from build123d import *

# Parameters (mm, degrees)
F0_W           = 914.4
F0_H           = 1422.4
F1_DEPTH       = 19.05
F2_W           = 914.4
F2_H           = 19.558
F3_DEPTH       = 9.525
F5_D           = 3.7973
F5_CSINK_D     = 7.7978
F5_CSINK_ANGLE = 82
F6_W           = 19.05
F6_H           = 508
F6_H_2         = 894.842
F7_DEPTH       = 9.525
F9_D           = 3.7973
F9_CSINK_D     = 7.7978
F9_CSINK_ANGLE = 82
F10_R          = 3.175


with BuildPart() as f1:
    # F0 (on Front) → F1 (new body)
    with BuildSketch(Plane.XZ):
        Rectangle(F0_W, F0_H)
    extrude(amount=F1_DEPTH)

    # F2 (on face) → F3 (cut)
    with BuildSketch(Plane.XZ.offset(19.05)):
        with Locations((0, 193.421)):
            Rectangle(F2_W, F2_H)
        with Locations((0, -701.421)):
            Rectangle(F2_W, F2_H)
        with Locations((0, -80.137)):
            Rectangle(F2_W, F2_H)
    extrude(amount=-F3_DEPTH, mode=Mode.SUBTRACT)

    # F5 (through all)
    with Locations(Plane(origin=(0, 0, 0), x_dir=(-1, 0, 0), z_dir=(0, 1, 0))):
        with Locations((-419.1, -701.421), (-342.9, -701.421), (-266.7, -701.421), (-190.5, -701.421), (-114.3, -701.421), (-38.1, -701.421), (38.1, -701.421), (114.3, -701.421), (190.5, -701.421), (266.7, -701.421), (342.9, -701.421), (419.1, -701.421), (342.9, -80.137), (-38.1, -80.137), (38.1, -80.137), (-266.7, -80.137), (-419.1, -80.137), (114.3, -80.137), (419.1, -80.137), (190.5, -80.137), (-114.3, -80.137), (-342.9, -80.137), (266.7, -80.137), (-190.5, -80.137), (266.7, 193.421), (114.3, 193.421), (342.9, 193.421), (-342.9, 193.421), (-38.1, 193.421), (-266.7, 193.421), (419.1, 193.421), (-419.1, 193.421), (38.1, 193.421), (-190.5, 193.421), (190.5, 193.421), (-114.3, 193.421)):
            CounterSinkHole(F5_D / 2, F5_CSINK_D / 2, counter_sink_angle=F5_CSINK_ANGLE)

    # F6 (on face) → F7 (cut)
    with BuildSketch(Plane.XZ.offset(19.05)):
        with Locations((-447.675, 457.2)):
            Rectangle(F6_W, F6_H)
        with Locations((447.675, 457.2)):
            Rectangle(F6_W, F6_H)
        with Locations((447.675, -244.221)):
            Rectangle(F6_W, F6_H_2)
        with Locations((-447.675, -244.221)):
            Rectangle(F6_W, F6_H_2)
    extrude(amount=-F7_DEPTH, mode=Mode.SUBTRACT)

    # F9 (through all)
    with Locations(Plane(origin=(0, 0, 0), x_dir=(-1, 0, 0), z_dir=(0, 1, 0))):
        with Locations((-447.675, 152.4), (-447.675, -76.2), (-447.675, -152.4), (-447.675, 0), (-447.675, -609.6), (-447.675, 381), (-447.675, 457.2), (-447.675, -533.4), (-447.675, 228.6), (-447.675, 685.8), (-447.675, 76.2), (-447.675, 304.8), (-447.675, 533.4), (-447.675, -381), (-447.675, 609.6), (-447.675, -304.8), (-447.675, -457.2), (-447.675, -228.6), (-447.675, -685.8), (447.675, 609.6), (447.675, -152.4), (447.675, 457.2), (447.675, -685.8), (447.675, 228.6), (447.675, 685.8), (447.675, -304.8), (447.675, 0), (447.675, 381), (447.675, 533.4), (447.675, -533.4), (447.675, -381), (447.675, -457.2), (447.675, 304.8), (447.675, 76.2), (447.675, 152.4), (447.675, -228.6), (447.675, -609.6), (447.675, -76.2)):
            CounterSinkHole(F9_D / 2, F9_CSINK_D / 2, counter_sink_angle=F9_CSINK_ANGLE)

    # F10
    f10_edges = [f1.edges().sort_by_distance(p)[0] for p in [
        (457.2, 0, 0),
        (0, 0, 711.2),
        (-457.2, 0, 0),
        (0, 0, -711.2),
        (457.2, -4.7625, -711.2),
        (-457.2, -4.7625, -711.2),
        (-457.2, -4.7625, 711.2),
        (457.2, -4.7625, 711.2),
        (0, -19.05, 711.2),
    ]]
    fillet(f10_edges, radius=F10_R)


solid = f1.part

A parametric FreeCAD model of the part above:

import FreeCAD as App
import Part
import Sketcher
Q = App.Units.Quantity


def edges_at(feature, points):
    """Names of the edges that pass closest to the given points."""
    edges = feature.Shape.Edges
    near = lambda p: min(range(len(edges)), key=lambda i: edges[i].distToShape(Part.Vertex(*p))[0])
    return sorted({f"Edge{near(p) + 1}" for p in points})

doc = App.newDocument("Part")
body = doc.addObject("PartDesign::Body", "Body")

sketch1 = doc.addObject("Sketcher::SketchObject", "Sketch")
body.addObject(sketch1)
sketch1.AttachmentSupport = (doc.XZ_Plane, [""])
sketch1.MapMode = "FlatFace"
sketch1.addGeometry([
    Part.LineSegment(App.Vector(-457, 711, 0), App.Vector(-457, -711, 0)),
    Part.LineSegment(App.Vector(-457, -711, 0), App.Vector(457, -711, 0)),
    Part.LineSegment(App.Vector(457, -711, 0), App.Vector(457, 711, 0)),
    Part.LineSegment(App.Vector(457, 711, 0), App.Vector(-457, 711, 0)),
], False)
sketch1.addConstraint([
    Sketcher.Constraint("Coincident", 0, 2, 1, 1),
    Sketcher.Constraint("Coincident", 1, 2, 2, 1),
    Sketcher.Constraint("Coincident", 2, 2, 3, 1),
    Sketcher.Constraint("Coincident", 3, 2, 0, 1),
    Sketcher.Constraint("Vertical", 0),
    Sketcher.Constraint("Horizontal", 1),
    Sketcher.Constraint("Vertical", 2),
    Sketcher.Constraint("Horizontal", 3),
    Sketcher.Constraint("Symmetric", 0, 2, 2, 2, -1, 1),
    Sketcher.Constraint("DistanceX", 1, 1, 1, 2, Q("36 in")),
    Sketcher.Constraint("DistanceY", 0, 2, 0, 1, Q("56 in")),
])
pad1 = doc.addObject("PartDesign::Pad", "Pad")
body.addObject(pad1)
pad1.Profile = sketch1
pad1.Length = Q("0.75 in")

sketch2 = doc.addObject("Sketcher::SketchObject", "Sketch001")
body.addObject(sketch2)
sketch2.AttachmentSupport = (doc.XZ_Plane, [""])
sketch2.MapMode = "FlatFace"
sketch2.AttachmentOffset = App.Placement(App.Vector(0, 0, 0.75 * 25.4), App.Rotation())
sketch2.addGeometry([
    Part.LineSegment(App.Vector(-457, 203, 0), App.Vector(-457, 184, 0)),
    Part.LineSegment(App.Vector(-457, 184, 0), App.Vector(457, 184, 0)),
    Part.LineSegment(App.Vector(457, 184, 0), App.Vector(457, 203, 0)),
    Part.LineSegment(App.Vector(457, 203, 0), App.Vector(-457, 203, 0)),
    Part.LineSegment(App.Vector(-457, -692, 0), App.Vector(-457, -711, 0)),
    Part.LineSegment(App.Vector(-457, -711, 0), App.Vector(457, -711, 0)),
    Part.LineSegment(App.Vector(457, -711, 0), App.Vector(457, -692, 0)),
    Part.LineSegment(App.Vector(457, -692, 0), App.Vector(-457, -692, 0)),
    Part.LineSegment(App.Vector(-457, -70, 0), App.Vector(-457, -90, 0)),
    Part.LineSegment(App.Vector(-457, -90, 0), App.Vector(457, -90, 0)),
    Part.LineSegment(App.Vector(457, -90, 0), App.Vector(457, -70, 0)),
    Part.LineSegment(App.Vector(457, -70, 0), App.Vector(-457, -70, 0)),
], False)
sketch2.addConstraint([
    Sketcher.Constraint("Coincident", 0, 2, 1, 1),
    Sketcher.Constraint("Coincident", 1, 2, 2, 1),
    Sketcher.Constraint("Coincident", 2, 2, 3, 1),
    Sketcher.Constraint("Coincident", 3, 2, 0, 1),
    Sketcher.Constraint("Coincident", 4, 2, 5, 1),
    Sketcher.Constraint("Coincident", 5, 2, 6, 1),
    Sketcher.Constraint("Coincident", 6, 2, 7, 1),
    Sketcher.Constraint("Coincident", 7, 2, 4, 1),
    Sketcher.Constraint("Coincident", 8, 2, 9, 1),
    Sketcher.Constraint("Coincident", 9, 2, 10, 1),
    Sketcher.Constraint("Coincident", 10, 2, 11, 1),
    Sketcher.Constraint("Coincident", 11, 2, 8, 1),
    Sketcher.Constraint("Vertical", 0),
    Sketcher.Constraint("Horizontal", 1),
    Sketcher.Constraint("Vertical", 2),
    Sketcher.Constraint("Horizontal", 3),
    Sketcher.Constraint("Vertical", 4),
    Sketcher.Constraint("Horizontal", 5),
    Sketcher.Constraint("Vertical", 6),
    Sketcher.Constraint("Horizontal", 7),
    Sketcher.Constraint("Vertical", 8),
    Sketcher.Constraint("Horizontal", 9),
    Sketcher.Constraint("Vertical", 10),
    Sketcher.Constraint("Horizontal", 11),
    Sketcher.Constraint("Vertical", 3, 2, 4, 2),
    Sketcher.Constraint("Vertical", 2, 2, 5, 2),
    Sketcher.Constraint("Vertical", 7, 2, 8, 2),
    Sketcher.Constraint("Vertical", 6, 2, 9, 2),
    Sketcher.Constraint("Equal", 2, 4),
    Sketcher.Constraint("Equal", 6, 8),
    Sketcher.Constraint("DistanceX", 1, 1, 1, 2, Q("36 in")),
    Sketcher.Constraint("DistanceX", 0, 2, -1, 1, Q("18 in")),
    Sketcher.Constraint("DistanceY", -1, 1, 2, 2, Q("8 in")),
    Sketcher.Constraint("DistanceY", 4, 2, -1, 1, Q("28 in")),
    Sketcher.Constraint("DistanceY", 10, 2, 1, 2, Q("10 in")),
    Sketcher.Constraint("DistanceY", 0, 2, 0, 1, Q("0.77 in")),
])
pocket1 = doc.addObject("PartDesign::Pocket", "Pocket")
body.addObject(pocket1)
pocket1.Profile = sketch2
pocket1.Length = Q("0.375 in")

sketch3 = doc.addObject("Sketcher::SketchObject", "Sketch002")
body.addObject(sketch3)
sketch3.AttachmentSupport = (doc.XZ_Plane, [""])
sketch3.MapMode = "FlatFace"
sketch3.addGeometry([
    Part.Circle(App.Vector(419.1, -701.4, 0), App.Vector(0, 0, 1), 1.9),
    Part.Circle(App.Vector(342.9, -701.4, 0), App.Vector(0, 0, 1), 1.9),
    Part.Circle(App.Vector(266.7, -701.4, 0), App.Vector(0, 0, 1), 1.9),
    Part.Circle(App.Vector(190.5, -701.4, 0), App.Vector(0, 0, 1), 1.9),
    Part.Circle(App.Vector(114.3, -701.4, 0), App.Vector(0, 0, 1), 1.9),
    Part.Circle(App.Vector(38.1, -701.4, 0), App.Vector(0, 0, 1), 1.9),
    Part.Circle(App.Vector(-38.1, -701.4, 0), App.Vector(0, 0, 1), 1.9),
    Part.Circle(App.Vector(-114.3, -701.4, 0), App.Vector(0, 0, 1), 1.9),
    Part.Circle(App.Vector(-190.5, -701.4, 0), App.Vector(0, 0, 1), 1.9),
    Part.Circle(App.Vector(-266.7, -701.4, 0), App.Vector(0, 0, 1), 1.9),
    Part.Circle(App.Vector(-342.9, -701.4, 0), App.Vector(0, 0, 1), 1.9),
    Part.Circle(App.Vector(-419.1, -701.4, 0), App.Vector(0, 0, 1), 1.9),
    Part.Circle(App.Vector(-342.9, -80.1, 0), App.Vector(0, 0, 1), 1.9),
    Part.Circle(App.Vector(38.1, -80.1, 0), App.Vector(0, 0, 1), 1.9),
    Part.Circle(App.Vector(-38.1, -80.1, 0), App.Vector(0, 0, 1), 1.9),
    Part.Circle(App.Vector(266.7, -80.1, 0), App.Vector(0, 0, 1), 1.9),
    Part.Circle(App.Vector(419.1, -80.1, 0), App.Vector(0, 0, 1), 1.9),
    Part.Circle(App.Vector(-114.3, -80.1, 0), App.Vector(0, 0, 1), 1.9),
    Part.Circle(App.Vector(-419.1, -80.1, 0), App.Vector(0, 0, 1), 1.9),
    Part.Circle(App.Vector(-190.5, -80.1, 0), App.Vector(0, 0, 1), 1.9),
    Part.Circle(App.Vector(114.3, -80.1, 0), App.Vector(0, 0, 1), 1.9),
    Part.Circle(App.Vector(342.9, -80.1, 0), App.Vector(0, 0, 1), 1.9),
    Part.Circle(App.Vector(-266.7, -80.1, 0), App.Vector(0, 0, 1), 1.9),
    Part.Circle(App.Vector(190.5, -80.1, 0), App.Vector(0, 0, 1), 1.9),
    Part.Circle(App.Vector(-266.7, 193.4, 0), App.Vector(0, 0, 1), 1.9),
    Part.Circle(App.Vector(-114.3, 193.4, 0), App.Vector(0, 0, 1), 1.9),
    Part.Circle(App.Vector(-342.9, 193.4, 0), App.Vector(0, 0, 1), 1.9),
    Part.Circle(App.Vector(342.9, 193.4, 0), App.Vector(0, 0, 1), 1.9),
    Part.Circle(App.Vector(38.1, 193.4, 0), App.Vector(0, 0, 1), 1.9),
    Part.Circle(App.Vector(266.7, 193.4, 0), App.Vector(0, 0, 1), 1.9),
    Part.Circle(App.Vector(-419.1, 193.4, 0), App.Vector(0, 0, 1), 1.9),
    Part.Circle(App.Vector(419.1, 193.4, 0), App.Vector(0, 0, 1), 1.9),
    Part.Circle(App.Vector(-38.1, 193.4, 0), App.Vector(0, 0, 1), 1.9),
    Part.Circle(App.Vector(190.5, 193.4, 0), App.Vector(0, 0, 1), 1.9),
    Part.Circle(App.Vector(-190.5, 193.4, 0), App.Vector(0, 0, 1), 1.9),
    Part.Circle(App.Vector(114.3, 193.4, 0), App.Vector(0, 0, 1), 1.9),
], False)
sketch3.addConstraint([
    Sketcher.Constraint("Equal", 0, 1),
    Sketcher.Constraint("Equal", 1, 2),
    Sketcher.Constraint("Equal", 2, 3),
    Sketcher.Constraint("Equal", 3, 4),
    Sketcher.Constraint("Equal", 4, 5),
    Sketcher.Constraint("Equal", 5, 6),
    Sketcher.Constraint("Equal", 6, 7),
    Sketcher.Constraint("Equal", 7, 8),
    Sketcher.Constraint("Equal", 8, 9),
    Sketcher.Constraint("Equal", 9, 10),
    Sketcher.Constraint("Equal", 10, 11),
    Sketcher.Constraint("Equal", 11, 12),
    Sketcher.Constraint("Equal", 12, 13),
    Sketcher.Constraint("Equal", 13, 14),
    Sketcher.Constraint("Equal", 14, 15),
    Sketcher.Constraint("Equal", 15, 16),
    Sketcher.Constraint("Equal", 16, 17),
    Sketcher.Constraint("Equal", 17, 18),
    Sketcher.Constraint("Equal", 18, 19),
    Sketcher.Constraint("Equal", 19, 20),
    Sketcher.Constraint("Equal", 20, 21),
    Sketcher.Constraint("Equal", 21, 22),
    Sketcher.Constraint("Equal", 22, 23),
    Sketcher.Constraint("Equal", 23, 24),
    Sketcher.Constraint("Equal", 24, 25),
    Sketcher.Constraint("Equal", 25, 26),
    Sketcher.Constraint("Equal", 26, 27),
    Sketcher.Constraint("Equal", 27, 28),
    Sketcher.Constraint("Equal", 28, 29),
    Sketcher.Constraint("Equal", 29, 30),
    Sketcher.Constraint("Equal", 30, 31),
    Sketcher.Constraint("Equal", 31, 32),
    Sketcher.Constraint("Equal", 32, 33),
    Sketcher.Constraint("Equal", 33, 34),
    Sketcher.Constraint("Equal", 34, 35),
    Sketcher.Constraint("Symmetric", 5, 3, 6, 3, -2),
    Sketcher.Constraint("Symmetric", 4, 3, 7, 3, -2),
    Sketcher.Constraint("Symmetric", 3, 3, 8, 3, -2),
    Sketcher.Constraint("Symmetric", 2, 3, 9, 3, -2),
    Sketcher.Constraint("Symmetric", 1, 3, 10, 3, -2),
    Sketcher.Constraint("Symmetric", 0, 3, 11, 3, -2),
    Sketcher.Constraint("Symmetric", 13, 3, 14, 3, -2),
    Sketcher.Constraint("Symmetric", 16, 3, 18, 3, -2),
    Sketcher.Constraint("Symmetric", 17, 3, 20, 3, -2),
    Sketcher.Constraint("Symmetric", 12, 3, 21, 3, -2),
    Sketcher.Constraint("Symmetric", 15, 3, 22, 3, -2),
    Sketcher.Constraint("Symmetric", 19, 3, 23, 3, -2),
    Sketcher.Constraint("Symmetric", 26, 3, 27, 3, -2),
    Sketcher.Constraint("Symmetric", 24, 3, 29, 3, -2),
    Sketcher.Constraint("Symmetric", 30, 3, 31, 3, -2),
    Sketcher.Constraint("Symmetric", 28, 3, 32, 3, -2),
    Sketcher.Constraint("Symmetric", 33, 3, 34, 3, -2),
    Sketcher.Constraint("Symmetric", 25, 3, 35, 3, -2),
    Sketcher.Constraint("Horizontal", 0, 3, 1, 3),
    Sketcher.Constraint("Horizontal", 1, 3, 2, 3),
    Sketcher.Constraint("Horizontal", 2, 3, 3, 3),
    Sketcher.Constraint("Horizontal", 3, 3, 4, 3),
    Sketcher.Constraint("Horizontal", 4, 3, 5, 3),
    Sketcher.Constraint("Horizontal", 12, 3, 13, 3),
    Sketcher.Constraint("Horizontal", 14, 3, 15, 3),
    Sketcher.Constraint("Horizontal", 15, 3, 16, 3),
    Sketcher.Constraint("Horizontal", 16, 3, 17, 3),
    Sketcher.Constraint("Horizontal", 18, 3, 19, 3),
    Sketcher.Constraint("Horizontal", 24, 3, 25, 3),
    Sketcher.Constraint("Horizontal", 25, 3, 26, 3),
    Sketcher.Constraint("Horizontal", 27, 3, 28, 3),
    Sketcher.Constraint("Horizontal", 29, 3, 30, 3),
    Sketcher.Constraint("Horizontal", 32, 3, 33, 3),
    Sketcher.Constraint("Vertical", 10, 3, 12, 3),
    Sketcher.Constraint("Vertical", 5, 3, 13, 3),
    Sketcher.Constraint("Vertical", 2, 3, 15, 3),
    Sketcher.Constraint("Vertical", 0, 3, 16, 3),
    Sketcher.Constraint("Vertical", 7, 3, 17, 3),
    Sketcher.Constraint("Vertical", 8, 3, 19, 3),
    Sketcher.Constraint("Vertical", 22, 3, 24, 3),
    Sketcher.Constraint("Vertical", 17, 3, 25, 3),
    Sketcher.Constraint("Vertical", 12, 3, 26, 3),
    Sketcher.Constraint("Vertical", 13, 3, 28, 3),
    Sketcher.Constraint("Vertical", 18, 3, 30, 3),
    Sketcher.Constraint("Vertical", 23, 3, 33, 3),
    Sketcher.Constraint("DistanceX", 1, 3, 0, 3, Q("3 in")),
    Sketcher.Constraint("DistanceX", 2, 3, 1, 3, Q("3 in")),
    Sketcher.Constraint("DistanceX", 3, 3, 2, 3, Q("3 in")),
    Sketcher.Constraint("DistanceX", 4, 3, 3, 3, Q("3 in")),
    Sketcher.Constraint("DistanceX", 5, 3, 4, 3, Q("3 in")),
    Sketcher.Constraint("DistanceX", 6, 3, 5, 3, Q("3 in")),
    Sketcher.Constraint("Diameter", 0, Q("0.1495 in")),
    Sketcher.Constraint("DistanceY", 10, 3, 12, 3, Q("24.46 in")),
    Sketcher.Constraint("DistanceY", 22, 3, 24, 3, Q("10.77 in")),
    Sketcher.Constraint("DistanceY", 0, 3, -1, 1, Q("27.615 in")),
])
doc.recompute()
hole = doc.addObject("PartDesign::Hole", "Hole")
body.addObject(hole)
hole.Profile = sketch3
hole.ThreadType = "None"
hole.Diameter = Q("0.1495 in")
hole.DepthType = "ThroughAll"
hole.HoleCutType = "Countersink"
hole.HoleCutDiameter = Q("0.307 in")
hole.HoleCutCountersinkAngle = 82
hole.Reversed = True

sketch4 = doc.addObject("Sketcher::SketchObject", "Sketch003")
body.addObject(sketch4)
sketch4.AttachmentSupport = (doc.XZ_Plane, [""])
sketch4.MapMode = "FlatFace"
sketch4.AttachmentOffset = App.Placement(App.Vector(0, 0, 0.75 * 25.4), App.Rotation())
sketch4.addGeometry([
    Part.LineSegment(App.Vector(-457, 711, 0), App.Vector(-457, -692, 0)),
    Part.LineSegment(App.Vector(-457, -692, 0), App.Vector(-438, -692, 0)),
    Part.LineSegment(App.Vector(-438, -692, 0), App.Vector(-438, 711, 0)),
    Part.LineSegment(App.Vector(-438, 711, 0), App.Vector(-457, 711, 0)),
    Part.LineSegment(App.Vector(438, 711, 0), App.Vector(438, -692, 0)),
    Part.LineSegment(App.Vector(438, -692, 0), App.Vector(457, -692, 0)),
    Part.LineSegment(App.Vector(457, -692, 0), App.Vector(457, 711, 0)),
    Part.LineSegment(App.Vector(457, 711, 0), App.Vector(438, 711, 0)),
], False)
sketch4.addConstraint([
    Sketcher.Constraint("Coincident", 0, 2, 1, 1),
    Sketcher.Constraint("Coincident", 1, 2, 2, 1),
    Sketcher.Constraint("Coincident", 2, 2, 3, 1),
    Sketcher.Constraint("Coincident", 3, 2, 0, 1),
    Sketcher.Constraint("Coincident", 4, 2, 5, 1),
    Sketcher.Constraint("Coincident", 5, 2, 6, 1),
    Sketcher.Constraint("Coincident", 6, 2, 7, 1),
    Sketcher.Constraint("Coincident", 7, 2, 4, 1),
    Sketcher.Constraint("Vertical", 0),
    Sketcher.Constraint("Horizontal", 1),
    Sketcher.Constraint("Vertical", 2),
    Sketcher.Constraint("Horizontal", 3),
    Sketcher.Constraint("Vertical", 4),
    Sketcher.Constraint("Horizontal", 5),
    Sketcher.Constraint("Vertical", 6),
    Sketcher.Constraint("Horizontal", 7),
    Sketcher.Constraint("Symmetric", 1, 2, 4, 2, -2),
    Sketcher.Constraint("Symmetric", 3, 2, 6, 2, -2),
    Sketcher.Constraint("DistanceX", 0, 2, -1, 1, Q("18 in")),
    Sketcher.Constraint("DistanceY", -1, 1, 2, 2, Q("28 in")),
    Sketcher.Constraint("DistanceX", 1, 1, 1, 2, Q("0.75 in")),
    Sketcher.Constraint("DistanceY", 0, 2, 0, 1, Q("55.23 in")),
])
pocket2 = doc.addObject("PartDesign::Pocket", "Pocket001")
body.addObject(pocket2)
pocket2.Profile = sketch4
pocket2.Length = Q("0.375 in")

sketch5 = doc.addObject("Sketcher::SketchObject", "Sketch004")
body.addObject(sketch5)
sketch5.AttachmentSupport = (doc.XZ_Plane, [""])
sketch5.MapMode = "FlatFace"
sketch5.addGeometry([
    Part.Circle(App.Vector(447.7, 152.4, 0), App.Vector(0, 0, 1), 1.9),
    Part.Circle(App.Vector(447.7, -76.2, 0), App.Vector(0, 0, 1), 1.9),
    Part.Circle(App.Vector(447.7, -152.4, 0), App.Vector(0, 0, 1), 1.9),
    Part.Circle(App.Vector(447.7, 0, 0), App.Vector(0, 0, 1), 1.9),
    Part.Circle(App.Vector(447.7, -609.6, 0), App.Vector(0, 0, 1), 1.9),
    Part.Circle(App.Vector(447.7, 381, 0), App.Vector(0, 0, 1), 1.9),
    Part.Circle(App.Vector(447.7, 457.2, 0), App.Vector(0, 0, 1), 1.9),
    Part.Circle(App.Vector(447.7, -533.4, 0), App.Vector(0, 0, 1), 1.9),
    Part.Circle(App.Vector(447.7, 228.6, 0), App.Vector(0, 0, 1), 1.9),
    Part.Circle(App.Vector(447.7, 685.8, 0), App.Vector(0, 0, 1), 1.9),
    Part.Circle(App.Vector(447.7, 76.2, 0), App.Vector(0, 0, 1), 1.9),
    Part.Circle(App.Vector(447.7, 304.8, 0), App.Vector(0, 0, 1), 1.9),
    Part.Circle(App.Vector(447.7, 533.4, 0), App.Vector(0, 0, 1), 1.9),
    Part.Circle(App.Vector(447.7, -381, 0), App.Vector(0, 0, 1), 1.9),
    Part.Circle(App.Vector(447.7, 609.6, 0), App.Vector(0, 0, 1), 1.9),
    Part.Circle(App.Vector(447.7, -304.8, 0), App.Vector(0, 0, 1), 1.9),
    Part.Circle(App.Vector(447.7, -457.2, 0), App.Vector(0, 0, 1), 1.9),
    Part.Circle(App.Vector(447.7, -228.6, 0), App.Vector(0, 0, 1), 1.9),
    Part.Circle(App.Vector(447.7, -685.8, 0), App.Vector(0, 0, 1), 1.9),
    Part.Circle(App.Vector(-447.7, 609.6, 0), App.Vector(0, 0, 1), 1.9),
    Part.Circle(App.Vector(-447.7, -152.4, 0), App.Vector(0, 0, 1), 1.9),
    Part.Circle(App.Vector(-447.7, 457.2, 0), App.Vector(0, 0, 1), 1.9),
    Part.Circle(App.Vector(-447.7, -685.8, 0), App.Vector(0, 0, 1), 1.9),
    Part.Circle(App.Vector(-447.7, 228.6, 0), App.Vector(0, 0, 1), 1.9),
    Part.Circle(App.Vector(-447.7, 685.8, 0), App.Vector(0, 0, 1), 1.9),
    Part.Circle(App.Vector(-447.7, -304.8, 0), App.Vector(0, 0, 1), 1.9),
    Part.Circle(App.Vector(-447.7, 0, 0), App.Vector(0, 0, 1), 1.9),
    Part.Circle(App.Vector(-447.7, 381, 0), App.Vector(0, 0, 1), 1.9),
    Part.Circle(App.Vector(-447.7, 533.4, 0), App.Vector(0, 0, 1), 1.9),
    Part.Circle(App.Vector(-447.7, -533.4, 0), App.Vector(0, 0, 1), 1.9),
    Part.Circle(App.Vector(-447.7, -381, 0), App.Vector(0, 0, 1), 1.9),
    Part.Circle(App.Vector(-447.7, -457.2, 0), App.Vector(0, 0, 1), 1.9),
    Part.Circle(App.Vector(-447.7, 304.8, 0), App.Vector(0, 0, 1), 1.9),
    Part.Circle(App.Vector(-447.7, 76.2, 0), App.Vector(0, 0, 1), 1.9),
    Part.Circle(App.Vector(-447.7, 152.4, 0), App.Vector(0, 0, 1), 1.9),
    Part.Circle(App.Vector(-447.7, -228.6, 0), App.Vector(0, 0, 1), 1.9),
    Part.Circle(App.Vector(-447.7, -609.6, 0), App.Vector(0, 0, 1), 1.9),
    Part.Circle(App.Vector(-447.7, -76.2, 0), App.Vector(0, 0, 1), 1.9),
], False)
sketch5.addConstraint([
    Sketcher.Constraint("Equal", 0, 1),
    Sketcher.Constraint("Equal", 1, 2),
    Sketcher.Constraint("Equal", 2, 3),
    Sketcher.Constraint("Equal", 3, 4),
    Sketcher.Constraint("Equal", 4, 5),
    Sketcher.Constraint("Equal", 5, 6),
    Sketcher.Constraint("Equal", 6, 7),
    Sketcher.Constraint("Equal", 7, 8),
    Sketcher.Constraint("Equal", 8, 9),
    Sketcher.Constraint("Equal", 9, 10),
    Sketcher.Constraint("Equal", 10, 11),
    Sketcher.Constraint("Equal", 11, 12),
    Sketcher.Constraint("Equal", 12, 13),
    Sketcher.Constraint("Equal", 13, 14),
    Sketcher.Constraint("Equal", 14, 15),
    Sketcher.Constraint("Equal", 15, 16),
    Sketcher.Constraint("Equal", 16, 17),
    Sketcher.Constraint("Equal", 17, 18),
    Sketcher.Constraint("Equal", 18, 19),
    Sketcher.Constraint("Equal", 19, 20),
    Sketcher.Constraint("Equal", 20, 21),
    Sketcher.Constraint("Equal", 21, 22),
    Sketcher.Constraint("Equal", 22, 23),
    Sketcher.Constraint("Equal", 23, 24),
    Sketcher.Constraint("Equal", 24, 25),
    Sketcher.Constraint("Equal", 25, 26),
    Sketcher.Constraint("Equal", 26, 27),
    Sketcher.Constraint("Equal", 27, 28),
    Sketcher.Constraint("Equal", 28, 29),
    Sketcher.Constraint("Equal", 29, 30),
    Sketcher.Constraint("Equal", 30, 31),
    Sketcher.Constraint("Equal", 31, 32),
    Sketcher.Constraint("Equal", 32, 33),
    Sketcher.Constraint("Equal", 33, 34),
    Sketcher.Constraint("Equal", 34, 35),
    Sketcher.Constraint("Equal", 35, 36),
    Sketcher.Constraint("Equal", 36, 37),
    Sketcher.Constraint("Symmetric", 4, 3, 19, 3, -1, 1),
    Sketcher.Constraint("Symmetric", 0, 3, 20, 3, -1, 1),
    Sketcher.Constraint("Symmetric", 16, 3, 21, 3, -1, 1),
    Sketcher.Constraint("Symmetric", 9, 3, 22, 3, -1, 1),
    Sketcher.Constraint("Symmetric", 17, 3, 23, 3, -1, 1),
    Sketcher.Constraint("Symmetric", 18, 3, 24, 3, -1, 1),
    Sketcher.Constraint("Symmetric", 11, 3, 25, 3, -1, 1),
    Sketcher.Constraint("Symmetric", 3, 3, 26, 3, -1, 1),
    Sketcher.Constraint("Symmetric", 13, 3, 27, 3, -1, 1),
    Sketcher.Constraint("Symmetric", 7, 3, 28, 3, -1, 1),
    Sketcher.Constraint("Symmetric", 12, 3, 29, 3, -1, 1),
    Sketcher.Constraint("Symmetric", 5, 3, 30, 3, -1, 1),
    Sketcher.Constraint("Symmetric", 6, 3, 31, 3, -1, 1),
    Sketcher.Constraint("Symmetric", 15, 3, 32, 3, -1, 1),
    Sketcher.Constraint("Symmetric", 1, 3, 33, 3, -1, 1),
    Sketcher.Constraint("Symmetric", 2, 3, 34, 3, -1, 1),
    Sketcher.Constraint("Symmetric", 8, 3, 35, 3, -1, 1),
    Sketcher.Constraint("Symmetric", 14, 3, 36, 3, -1, 1),
    Sketcher.Constraint("Symmetric", 10, 3, 37, 3, -1, 1),
    Sketcher.Constraint("Symmetric", 14, 3, 19, 3, -2),
    Sketcher.Constraint("Symmetric", 2, 3, 20, 3, -2),
    Sketcher.Constraint("Symmetric", 6, 3, 21, 3, -2),
    Sketcher.Constraint("Symmetric", 18, 3, 22, 3, -2),
    Sketcher.Constraint("Symmetric", 8, 3, 23, 3, -2),
    Sketcher.Constraint("Symmetric", 15, 3, 25, 3, -2),
    Sketcher.Constraint("Symmetric", 5, 3, 27, 3, -2),
    Sketcher.Constraint("Symmetric", 12, 3, 28, 3, -2),
    Sketcher.Constraint("Symmetric", 10, 3, 33, 3, -2),
    Sketcher.Constraint("PointOnObject", 3, 3, -1),
    Sketcher.Constraint("Vertical", 0, 3, 1, 3),
    Sketcher.Constraint("Vertical", 2, 3, 3, 3),
    Sketcher.Constraint("Vertical", 3, 3, 4, 3),
    Sketcher.Constraint("Vertical", 4, 3, 5, 3),
    Sketcher.Constraint("Vertical", 5, 3, 6, 3),
    Sketcher.Constraint("Vertical", 6, 3, 7, 3),
    Sketcher.Constraint("Vertical", 7, 3, 8, 3),
    Sketcher.Constraint("Vertical", 8, 3, 9, 3),
    Sketcher.Constraint("Vertical", 10, 3, 11, 3),
    Sketcher.Constraint("DistanceY", -1, 1, 0, 3, Q("6 in")),
    Sketcher.Constraint("DistanceY", 1, 3, -1, 1, Q("3 in")),
    Sketcher.Constraint("DistanceY", 4, 3, -1, 1, Q("24 in")),
    Sketcher.Constraint("DistanceY", -1, 1, 5, 3, Q("15 in")),
    Sketcher.Constraint("DistanceY", -1, 1, 6, 3, Q("18 in")),
    Sketcher.Constraint("DistanceY", 7, 3, -1, 1, Q("21 in")),
    Sketcher.Constraint("DistanceY", -1, 1, 8, 3, Q("9 in")),
    Sketcher.Constraint("DistanceY", -1, 1, 9, 3, Q("27 in")),
    Sketcher.Constraint("DistanceY", -1, 1, 11, 3, Q("12 in")),
    Sketcher.Constraint("Diameter", 0, Q("0.1495 in")),
    Sketcher.Constraint("DistanceX", 19, 3, 14, 3, Q("35.25 in")),
])
doc.recompute()
hole2 = doc.addObject("PartDesign::Hole", "Hole001")
body.addObject(hole2)
hole2.Profile = sketch5
hole2.ThreadType = "None"
hole2.Diameter = Q("0.1495 in")
hole2.DepthType = "ThroughAll"
hole2.HoleCutType = "Countersink"
hole2.HoleCutDiameter = Q("0.307 in")
hole2.HoleCutCountersinkAngle = 82
hole2.Reversed = True
doc.recompute()

fillet = doc.addObject("PartDesign::Fillet", "Fillet")
body.addObject(fillet)
fillet.Base = (hole2, edges_at(hole2, [
    (457.2, 0, 0),
    (0, 0, 711.2),
    (-457.2, 0, 0),
    (0, 0, -711.2),
    (457.2, -4.763, -711.2),
    (-457.2, -4.763, -711.2),
    (-457.2, -4.763, 711.2),
    (457.2, -4.763, 711.2),
    (0, -19.05, 711.2),
]))
fillet.Radius = Q("0.125 in")

doc.recompute()
